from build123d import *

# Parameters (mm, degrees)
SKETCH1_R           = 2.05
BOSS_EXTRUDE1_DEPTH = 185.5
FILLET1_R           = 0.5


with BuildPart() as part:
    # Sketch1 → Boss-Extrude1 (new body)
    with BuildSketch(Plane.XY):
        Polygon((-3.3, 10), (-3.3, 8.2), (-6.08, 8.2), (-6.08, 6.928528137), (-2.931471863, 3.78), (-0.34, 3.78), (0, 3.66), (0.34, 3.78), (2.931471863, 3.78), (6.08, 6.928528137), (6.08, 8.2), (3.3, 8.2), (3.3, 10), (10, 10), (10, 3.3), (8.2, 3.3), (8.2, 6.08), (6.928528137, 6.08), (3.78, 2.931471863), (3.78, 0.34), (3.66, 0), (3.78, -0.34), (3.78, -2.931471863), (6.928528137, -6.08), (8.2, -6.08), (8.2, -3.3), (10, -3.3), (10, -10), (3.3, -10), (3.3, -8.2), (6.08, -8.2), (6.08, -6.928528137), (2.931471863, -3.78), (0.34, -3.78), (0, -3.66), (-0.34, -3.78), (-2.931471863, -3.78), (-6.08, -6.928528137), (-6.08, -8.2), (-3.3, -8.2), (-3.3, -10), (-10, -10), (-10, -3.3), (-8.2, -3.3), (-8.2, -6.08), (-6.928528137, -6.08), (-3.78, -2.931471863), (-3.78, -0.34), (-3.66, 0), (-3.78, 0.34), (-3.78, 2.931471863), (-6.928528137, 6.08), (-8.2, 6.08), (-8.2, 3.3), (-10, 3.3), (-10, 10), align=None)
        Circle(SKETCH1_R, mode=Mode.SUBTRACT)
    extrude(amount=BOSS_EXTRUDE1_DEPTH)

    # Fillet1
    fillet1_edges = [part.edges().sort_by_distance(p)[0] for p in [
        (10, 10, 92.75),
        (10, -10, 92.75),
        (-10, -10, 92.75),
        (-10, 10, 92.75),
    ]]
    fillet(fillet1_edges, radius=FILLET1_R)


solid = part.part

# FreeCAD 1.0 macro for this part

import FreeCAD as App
import Part
import Sketcher


def edges_at(feature, points):
    """Names of the edges that pass closest to the given points."""
    edges = feature.Shape.Edges
    near = lambda p: min(range(len(edges)), key=lambda i: edges[i].distToShape(Part.Vertex(*p))[0])
    return sorted({f"Edge{near(p) + 1}" for p in points})

doc = App.newDocument("Part")
body = doc.addObject("PartDesign::Body", "Body")

# Sketch on XY plane
sketch1 = body.newObject("Sketcher::SketchObject", "Sketch")
sketch1.AttachmentSupport = (doc.getObject("XY_Plane"), [""])
sketch1.MapMode = "FlatFace"
sketch1.addGeometry(Part.LineSegment(App.Vector(-3.3, 8.2, 0), App.Vector(-3.3, 10, 0)), False)
sketch1.addGeometry(Part.LineSegment(App.Vector(-3.3, 10, 0), App.Vector(-10, 10, 0)), False)
sketch1.addGeometry(Part.LineSegment(App.Vector(-10, 10, 0), App.Vector(-10, 3.3, 0)), False)
sketch1.addGeometry(Part.LineSegment(App.Vector(-10, 3.3, 0), App.Vector(-8.2, 3.3, 0)), False)
sketch1.addGeometry(Part.LineSegment(App.Vector(-8.2, 3.3, 0), App.Vector(-8.2, 6.08, 0)), False)
sketch1.addGeometry(Part.LineSegment(App.Vector(-8.2, 6.08, 0), App.Vector(-6.93, 6.08, 0)), False)
sketch1.addGeometry(Part.LineSegment(App.Vector(-6.93, 6.08, 0), App.Vector(-3.78, 2.93, 0)), False)
sketch1.addGeometry(Part.LineSegment(App.Vector(-3.78, 2.93, 0), App.Vector(-3.78, 0.34, 0)), False)
sketch1.addGeometry(Part.LineSegment(App.Vector(-3.78, 0.34, 0), App.Vector(-3.66, 0, 0)), False)
sketch1.addGeometry(Part.LineSegment(App.Vector(-3.66, 0, 0), App.Vector(-3.78, -0.34, 0)), False)
sketch1.addGeometry(Part.LineSegment(App.Vector(-3.78, -0.34, 0), App.Vector(-3.78, -2.93, 0)), False)
sketch1.addGeometry(Part.LineSegment(App.Vector(-3.78, -2.93, 0), App.Vector(-6.93, -6.08, 0)), False)
sketch1.addGeometry(Part.LineSegment(App.Vector(-6.93, -6.08, 0), App.Vector(-8.2, -6.08, 0)), False)
sketch1.addGeometry(Part.LineSegment(App.Vector(-8.2, -6.08, 0), App.Vector(-8.2, -3.3, 0)), False)
sketch1.addGeometry(Part.LineSegment(App.Vector(-8.2, -3.3, 0), App.Vector(-10, -3.3, 0)), False)
sketch1.addGeometry(Part.LineSegment(App.Vector(-10, -3.3, 0), App.Vector(-10, -10, 0)), False)
sketch1.addGeometry(Part.LineSegment(App.Vector(-10, -10, 0), App.Vector(-3.3, -10, 0)), False)
sketch1.addGeometry(Part.LineSegment(App.Vector(-3.3, -10, 0), App.Vector(-3.3, -8.2, 0)), False)
sketch1.addGeometry(Part.LineSegment(App.Vector(-3.3, -8.2, 0), App.Vector(-6.08, -8.2, 0)), False)
sketch1.addGeometry(Part.LineSegment(App.Vector(-6.08, -8.2, 0), App.Vector(-6.08, -6.93, 0)), False)
sketch1.addGeometry(Part.LineSegment(App.Vector(-6.08, -6.93, 0), App.Vector(-2.93, -3.78, 0)), False)
sketch1.addGeometry(Part.LineSegment(App.Vector(-2.93, -3.78, 0), App.Vector(-0.34, -3.78, 0)), False)
sketch1.addGeometry(Part.LineSegment(App.Vector(-0.34, -3.78, 0), App.Vector(0, -3.66, 0)), False)
sketch1.addGeometry(Part.LineSegment(App.Vector(0, -3.66, 0), App.Vector(0.34, -3.78, 0)), False)
sketch1.addGeometry(Part.LineSegment(App.Vector(0.34, -3.78, 0), App.Vector(2.93, -3.78, 0)), False)
sketch1.addGeometry(Part.LineSegment(App.Vector(2.93, -3.78, 0), App.Vector(6.08, -6.93, 0)), False)
sketch1.addGeometry(Part.LineSegment(App.Vector(6.08, -6.93, 0), App.Vector(6.08, -8.2, 0)), False)
sketch1.addGeometry(Part.LineSegment(App.Vector(6.08, -8.2, 0), App.Vector(3.3, -8.2, 0)), False)
sketch1.addGeometry(Part.LineSegment(App.Vector(3.3, -8.2, 0), App.Vector(3.3, -10, 0)), False)
sketch1.addGeometry(Part.LineSegment(App.Vector(3.3, -10, 0), App.Vector(10, -10, 0)), False)
sketch1.addGeometry(Part.LineSegment(App.Vector(10, -10, 0), App.Vector(10, -3.3, 0)), False)
sketch1.addGeometry(Part.LineSegment(App.Vector(10, -3.3, 0), App.Vector(8.2, -3.3, 0)), False)
sketch1.addGeometry(Part.LineSegment(App.Vector(8.2, -3.3, 0), App.Vector(8.2, -6.08, 0)), False)
sketch1.addGeometry(Part.LineSegment(App.Vector(8.2, -6.08, 0), App.Vector(6.93, -6.08, 0)), False)
sketch1.addGeometry(Part.LineSegment(App.Vector(6.93, -6.08, 0), App.Vector(3.78, -2.93, 0)), False)
sketch1.addGeometry(Part.LineSegment(App.Vector(3.78, -2.93, 0), App.Vector(3.78, -0.34, 0)), False)
sketch1.addGeometry(Part.LineSegment(App.Vector(3.78, -0.34, 0), App.Vector(3.66, 0, 0)), False)
sketch1.addGeometry(Part.LineSegment(App.Vector(3.66, 0, 0), App.Vector(3.78, 0.34, 0)), False)
sketch1.addGeometry(Part.LineSegment(App.Vector(3.78, 0.34, 0), App.Vector(3.78, 2.93, 0)), False)
sketch1.addGeometry(Part.LineSegment(App.Vector(3.78, 2.93, 0), App.Vector(6.93, 6.08, 0)), False)
sketch1.addGeometry(Part.LineSegment(App.Vector(6.93, 6.08, 0), App.Vector(8.2, 6.08, 0)), False)
sketch1.addGeometry(Part.LineSegment(App.Vector(8.2, 6.08, 0), App.Vector(8.2, 3.3, 0)), False)
sketch1.addGeometry(Part.LineSegment(App.Vector(8.2, 3.3, 0), App.Vector(10, 3.3, 0)), False)
sketch1.addGeometry(Part.LineSegment(App.Vector(10, 3.3, 0), App.Vector(10, 10, 0)), False)
sketch1.addGeometry(Part.LineSegment(App.Vector(10, 10, 0), App.Vector(3.3, 10, 0)), False)
sketch1.addGeometry(Part.LineSegment(App.Vector(3.3, 10, 0), App.Vector(3.3, 8.2, 0)), False)
sketch1.addGeometry(Part.LineSegment(App.Vector(3.3, 8.2, 0), App.Vector(6.08, 8.2, 0)), False)
sketch1.addGeometry(Part.LineSegment(App.Vector(6.08, 8.2, 0), App.Vector(6.08, 6.93, 0)), False)
sketch1.addGeometry(Part.LineSegment(App.Vector(6.08, 6.93, 0), App.Vector(2.93, 3.78, 0)), False)
sketch1.addGeometry(Part.LineSegment(App.Vector(2.93, 3.78, 0), App.Vector(0.34, 3.78, 0)), False)
sketch1.addGeometry(Part.LineSegment(App.Vector(0.34, 3.78, 0), App.Vector(0, 3.66, 0)), False)
sketch1.addGeometry(Part.LineSegment(App.Vector(0, 3.66, 0), App.Vector(-0.34, 3.78, 0)), False)
sketch1.addGeometry(Part.LineSegment(App.Vector(-0.34, 3.78, 0), App.Vector(-2.93, 3.78, 0)), False)
sketch1.addGeometry(Part.LineSegment(App.Vector(-2.93, 3.78, 0), App.Vector(-6.08, 6.93, 0)), False)
sketch1.addGeometry(Part.LineSegment(App.Vector(-6.08, 6.93, 0), App.Vector(-6.08, 8.2, 0)), False)
sketch1.addGeometry(Part.LineSegment(App.Vector(-6.08, 8.2, 0), App.Vector(-3.3, 8.2, 0)), False)
sketch1.addGeometry(Part.Circle(App.Vector(0, 0, 0), App.Vector(0, 0, 1), 2.05), False)
sketch1.addConstraint(Sketcher.Constraint("Coincident", 0, 2, 1, 1))
sketch1.addConstraint(Sketcher.Constraint("Coincident", 1, 2, 2, 1))
sketch1.addConstraint(Sketcher.Constraint("Coincident", 2, 2, 3, 1))
sketch1.addConstraint(Sketcher.Constraint("Coincident", 3, 2, 4, 1))
sketch1.addConstraint(Sketcher.Constraint("Coincident", 4, 2, 5, 1))
sketch1.addConstraint(Sketcher.Constraint("Coincident", 5, 2, 6, 1))
sketch1.addConstraint(Sketcher.Constraint("Coincident", 6, 2, 7, 1))
sketch1.addConstraint(Sketcher.Constraint("Coincident", 7, 2, 8, 1))
sketch1.addConstraint(Sketcher.Constraint("Coincident", 8, 2, 9, 1))
sketch1.addConstraint(Sketcher.Constraint("Coincident", 9, 2, 10, 1))
sketch1.addConstraint(Sketcher.Constraint("Coincident", 10, 2, 11, 1))
sketch1.addConstraint(Sketcher.Constraint("Coincident", 11, 2, 12, 1))
sketch1.addConstraint(Sketcher.Constraint("Coincident", 12, 2, 13, 1))
sketch1.addConstraint(Sketcher.Constraint("Coincident", 13, 2, 14, 1))
sketch1.addConstraint(Sketcher.Constraint("Coincident", 14, 2, 15, 1))
sketch1.addConstraint(Sketcher.Constraint("Coincident", 15, 2, 16, 1))
sketch1.addConstraint(Sketcher.Constraint("Coincident", 16, 2, 17, 1))
sketch1.addConstraint(Sketcher.Constraint("Coincident", 17, 2, 18, 1))
sketch1.addConstraint(Sketcher.Constraint("Coincident", 18, 2, 19, 1))
sketch1.addConstraint(Sketcher.Constraint("Coincident", 19, 2, 20, 1))
sketch1.addConstraint(Sketcher.Constraint("Coincident", 20, 2, 21, 1))
sketch1.addConstraint(Sketcher.Constraint("Coincident", 21, 2, 22, 1))
sketch1.addConstraint(Sketcher.Constraint("Coincident", 22, 2, 23, 1))
sketch1.addConstraint(Sketcher.Constraint("Coincident", 23, 2, 24, 1))
sketch1.addConstraint(Sketcher.Constraint("Coincident", 24, 2, 25, 1))
sketch1.addConstraint(Sketcher.Constraint("Coincident", 25, 2, 26, 1))
sketch1.addConstraint(Sketcher.Constraint("Coincident", 26, 2, 27, 1))
sketch1.addConstraint(Sketcher.Constraint("Coincident", 27, 2, 28, 1))
sketch1.addConstraint(Sketcher.Constraint("Coincident", 28, 2, 29, 1))
sketch1.addConstraint(Sketcher.Constraint("Coincident", 29, 2, 30, 1))
sketch1.addConstraint(Sketcher.Constraint("Coincident", 30, 2, 31, 1))
sketch1.addConstraint(Sketcher.Constraint("Coincident", 31, 2, 32, 1))
sketch1.addConstraint(Sketcher.Constraint("Coincident", 32, 2, 33, 1))
sketch1.addConstraint(Sketcher.Constraint("Coincident", 33, 2, 34, 1))
sketch1.addConstraint(Sketcher.Constraint("Coincident", 34, 2, 35, 1))
sketch1.addConstraint(Sketcher.Constraint("Coincident", 35, 2, 36, 1))
sketch1.addConstraint(Sketcher.Constraint("Coincident", 36, 2, 37, 1))
sketch1.addConstraint(Sketcher.Constraint("Coincident", 37, 2, 38, 1))
sketch1.addConstraint(Sketcher.Constraint("Coincident", 38, 2, 39, 1))
sketch1.addConstraint(Sketcher.Constraint("Coincident", 39, 2, 40, 1))
sketch1.addConstraint(Sketcher.Constraint("Coincident", 40, 2, 41, 1))
sketch1.addConstraint(Sketcher.Constraint("Coincident", 41, 2, 42, 1))
sketch1.addConstraint(Sketcher.Constraint("Coincident", 42, 2, 43, 1))
sketch1.addConstraint(Sketcher.Constraint("Coincident", 43, 2, 44, 1))
sketch1.addConstraint(Sketcher.Constraint("Coincident", 44, 2, 45, 1))
sketch1.addConstraint(Sketcher.Constraint("Coincident", 45, 2, 46, 1))
sketch1.addConstraint(Sketcher.Constraint("Coincident", 46, 2, 47, 1))
sketch1.addConstraint(Sketcher.Constraint("Coincident", 47, 2, 48, 1))
sketch1.addConstraint(Sketcher.Constraint("Coincident", 48, 2, 49, 1))
sketch1.addConstraint(Sketcher.Constraint("Coincident", 49, 2, 50, 1))
sketch1.addConstraint(Sketcher.Constraint("Coincident", 50, 2, 51, 1))
sketch1.addConstraint(Sketcher.Constraint("Coincident", 51, 2, 52, 1))
sketch1.addConstraint(Sketcher.Constraint("Coincident", 52, 2, 53, 1))
sketch1.addConstraint(Sketcher.Constraint("Coincident", 53, 2, 54, 1))
sketch1.addConstraint(Sketcher.Constraint("Coincident", 54, 2, 55, 1))
sketch1.addConstraint(Sketcher.Constraint("Coincident", 55, 2, 0, 1))
sketch1.addConstraint(Sketcher.Constraint("Vertical", 0))
sketch1.addConstraint(Sketcher.Constraint("Horizontal", 1))
sketch1.addConstraint(Sketcher.Constraint("Vertical", 2))
sketch1.addConstraint(Sketcher.Constraint("Horizontal", 3))
sketch1.addConstraint(Sketcher.Constraint("Vertical", 4))
sketch1.addConstraint(Sketcher.Constraint("Horizontal", 5))
sketch1.addConstraint(Sketcher.Constraint("Vertical", 7))
sketch1.addConstraint(Sketcher.Constraint("Vertical", 10))
sketch1.addConstraint(Sketcher.Constraint("Horizontal", 12))
sketch1.addConstraint(Sketcher.Constraint("Vertical", 13))
sketch1.addConstraint(Sketcher.Constraint("Horizontal", 14))
sketch1.addConstraint(Sketcher.Constraint("Vertical", 15))
sketch1.addConstraint(Sketcher.Constraint("Horizontal", 16))
sketch1.addConstraint(Sketcher.Constraint("Vertical", 17))
sketch1.addConstraint(Sketcher.Constraint("Horizontal", 18))
sketch1.addConstraint(Sketcher.Constraint("Vertical", 19))
sketch1.addConstraint(Sketcher.Constraint("Horizontal", 21))
sketch1.addConstraint(Sketcher.Constraint("Horizontal", 24))
sketch1.addConstraint(Sketcher.Constraint("Vertical", 26))
sketch1.addConstraint(Sketcher.Constraint("Horizontal", 27))
sketch1.addConstraint(Sketcher.Constraint("Vertical", 28))
sketch1.addConstraint(Sketcher.Constraint("Horizontal", 29))
sketch1.addConstraint(Sketcher.Constraint("Vertical", 30))
sketch1.addConstraint(Sketcher.Constraint("Horizontal", 31))
sketch1.addConstraint(Sketcher.Constraint("Vertical", 32))
sketch1.addConstraint(Sketcher.Constraint("Horizontal", 33))
sketch1.addConstraint(Sketcher.Constraint("Vertical", 35))
sketch1.addConstraint(Sketcher.Constraint("Vertical", 38))
sketch1.addConstraint(Sketcher.Constraint("Horizontal", 40))
sketch1.addConstraint(Sketcher.Constraint("Vertical", 41))
sketch1.addConstraint(Sketcher.Constraint("Horizontal", 42))
sketch1.addConstraint(Sketcher.Constraint("Vertical", 43))
sketch1.addConstraint(Sketcher.Constraint("Horizontal", 44))
sketch1.addConstraint(Sketcher.Constraint("Vertical", 45))
sketch1.addConstraint(Sketcher.Constraint("Horizontal", 46))
sketch1.addConstraint(Sketcher.Constraint("Vertical", 47))
sketch1.addConstraint(Sketcher.Constraint("Horizontal", 49))
sketch1.addConstraint(Sketcher.Constraint("Horizontal", 52))
sketch1.addConstraint(Sketcher.Constraint("Vertical", 54))
sketch1.addConstraint(Sketcher.Constraint("Horizontal", 55))
sketch1.addConstraint(Sketcher.Constraint("Coincident", 56, 3, -1, 1))
sketch1.addConstraint(Sketcher.Constraint("Symmetric", 0, 2, 28, 2, -1, 1))
sketch1.addConstraint(Sketcher.Constraint("Symmetric", 2, 2, 30, 2, -1, 1))
sketch1.addConstraint(Sketcher.Constraint("Symmetric", 4, 2, 32, 2, -1, 1))
sketch1.addConstraint(Sketcher.Constraint("Symmetric", 6, 2, 34, 2, -1, 1))
sketch1.addConstraint(Sketcher.Constraint("Symmetric", 8, 2, 36, 2, -1, 1))
sketch1.addConstraint(Sketcher.Constraint("Symmetric", 9, 2, 37, 2, -1, 1))
sketch1.addConstraint(Sketcher.Constraint("Symmetric", 11, 2, 39, 2, -1, 1))
sketch1.addConstraint(Sketcher.Constraint("Symmetric", 13, 2, 41, 2, -1, 1))
sketch1.addConstraint(Sketcher.Constraint("Symmetric", 15, 2, 43, 2, -1, 1))
sketch1.addConstraint(Sketcher.Constraint("Symmetric", 17, 2, 45, 2, -1, 1))
sketch1.addConstraint(Sketcher.Constraint("Symmetric", 19, 2, 47, 2, -1, 1))
sketch1.addConstraint(Sketcher.Constraint("Symmetric", 20, 2, 48, 2, -1, 1))
sketch1.addConstraint(Sketcher.Constraint("Symmetric", 22, 2, 50, 2, -1, 1))
sketch1.addConstraint(Sketcher.Constraint("Symmetric", 23, 2, 51, 2, -1, 1))
sketch1.addConstraint(Sketcher.Constraint("Symmetric", 25, 2, 53, 2, -1, 1))
sketch1.addConstraint(Sketcher.Constraint("Symmetric", 21, 2, 23, 2, -2))
sketch1.addConstraint(Sketcher.Constraint("Symmetric", 19, 2, 25, 2, -2))
sketch1.addConstraint(Sketcher.Constraint("Symmetric", 17, 2, 27, 2, -2))
sketch1.addConstraint(Sketcher.Constraint("Symmetric", 15, 2, 29, 2, -2))
sketch1.addConstraint(Sketcher.Constraint("Symmetric", 13, 2, 31, 2, -2))
sketch1.addConstraint(Sketcher.Constraint("Symmetric", 11, 2, 33, 2, -2))
sketch1.addConstraint(Sketcher.Constraint("Symmetric", 10, 2, 34, 2, -2))
sketch1.addConstraint(Sketcher.Constraint("PointOnObject", 8, 2, -1))
sketch1.addConstraint(Sketcher.Constraint("PointOnObject", 22, 2, -2))
sketch1.addConstraint(Sketcher.Constraint("Perpendicular", 6, 11))
sketch1.addConstraint(Sketcher.Constraint("Parallel", 11, 20))
sketch1.addConstraint(Sketcher.Constraint("Perpendicular", 8, 22))
sketch1.addConstraint(Sketcher.Constraint("Perpendicular", 9, 23))
sketch1.addConstraint(Sketcher.Constraint("Perpendicular", 20, 25))
sketch1.addConstraint(Sketcher.Constraint("Parallel", 25, 34))
sketch1.addConstraint(Sketcher.Constraint("Perpendicular", 22, 36))
sketch1.addConstraint(Sketcher.Constraint("Perpendicular", 34, 39))
sketch1.addConstraint(Sketcher.Constraint("Perpendicular", 36, 50))
sketch1.addConstraint(Sketcher.Constraint("Perpendicular", 48, 53))
sketch1.addConstraint(Sketcher.Constraint("Horizontal", 46, 2, 54, 2))
sketch1.addConstraint(Sketcher.Constraint("Equal", 42, 0))
sketch1.addConstraint(Sketcher.Constraint("Equal", 44, 2))
sketch1.addConstraint(Sketcher.Constraint("Equal", 55, 4))
sketch1.addConstraint(Sketcher.Constraint("Equal", 52, 7))
sketch1.addConstraint(Sketcher.Constraint("Equal", 40, 19))
sketch1.addConstraint(Sketcher.Constraint("Equal", 11, 20))
sketch1.addConstraint(Sketcher.Constraint("Equal", 9, 22))
sketch1.addConstraint(Sketcher.Constraint("Diameter", 56, 4.1))
sketch1.addConstraint(Sketcher.Constraint("DistanceX", 1, 2, 1, 1, 6.7))
sketch1.addConstraint(Sketcher.Constraint("DistanceX", 3, 1, 3, 2, 1.8))
sketch1.addConstraint(Sketcher.Constraint("DistanceY", -1, 1, 0, 2, 10.0))
sketch1.addConstraint(Sketcher.Constraint("DistanceX", 18, 2, 18, 1, 2.78))
sketch1.addConstraint(Sketcher.Constraint("DistanceX", 6, 2, -1, 1, 3.78))
sketch1.addConstraint(Sketcher.Constraint("DistanceY", -1, 1, 7, 2, 0.34))
sketch1.addConstraint(Sketcher.Constraint("DistanceX", 8, 2, -1, 1, 3.66))
sketch1.addConstraint(Sketcher.Constraint("DistanceX", 5, 1, 5, 2, 1.271472))
pad1 = body.newObject("PartDesign::Pad", "Pad")
pad1.Profile = sketch1
pad1.Length = 185.5
doc.recompute()

fillet = body.newObject("PartDesign::Fillet", "Fillet")
fillet.Base = (pad1, edges_at(pad1, [
    (10, 10, 92.75),
    (10, -10, 92.75),
    (-10, -10, 92.75),
    (-10, 10, 92.75),
]))
fillet.Radius = 0.5

doc.recompute()
